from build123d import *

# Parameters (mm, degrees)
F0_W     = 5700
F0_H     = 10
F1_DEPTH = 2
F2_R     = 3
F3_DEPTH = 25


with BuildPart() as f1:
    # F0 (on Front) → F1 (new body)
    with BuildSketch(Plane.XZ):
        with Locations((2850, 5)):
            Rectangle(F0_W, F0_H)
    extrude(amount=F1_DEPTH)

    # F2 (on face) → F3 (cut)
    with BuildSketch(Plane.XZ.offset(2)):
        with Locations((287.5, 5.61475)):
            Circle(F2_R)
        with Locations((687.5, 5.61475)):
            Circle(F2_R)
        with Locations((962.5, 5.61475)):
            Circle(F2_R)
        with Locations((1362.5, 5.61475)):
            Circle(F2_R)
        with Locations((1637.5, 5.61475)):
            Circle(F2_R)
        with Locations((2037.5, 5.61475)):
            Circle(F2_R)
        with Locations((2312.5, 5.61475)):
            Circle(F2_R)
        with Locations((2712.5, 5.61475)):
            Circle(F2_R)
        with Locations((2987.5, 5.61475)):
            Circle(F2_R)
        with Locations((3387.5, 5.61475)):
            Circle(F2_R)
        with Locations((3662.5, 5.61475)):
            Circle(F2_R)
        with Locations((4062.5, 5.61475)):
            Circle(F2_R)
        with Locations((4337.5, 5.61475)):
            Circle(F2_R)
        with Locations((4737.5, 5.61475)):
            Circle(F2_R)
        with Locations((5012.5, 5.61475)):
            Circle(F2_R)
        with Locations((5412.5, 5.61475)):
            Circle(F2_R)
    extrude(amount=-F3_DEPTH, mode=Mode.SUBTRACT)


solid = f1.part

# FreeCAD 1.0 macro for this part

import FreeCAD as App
import Part
import Sketcher

V = App.Vector

doc = App.newDocument("Part")
params = doc.addObject("Spreadsheet::Sheet", "Params")
for row, (alias, value) in enumerate([
    ("sketch1_width", "5700 mm"),
    ("sketch1_height", "10 mm"),
    ("pad1_length", "2 mm"),
    ("sketch2_diameter", "6 mm"),
    ("pocket1_length", "25 mm"),
], start=1):
    params.set(f"A{row}", alias)
    params.set(f"B{row}", "=" + value)
    params.setAlias(f"B{row}", alias)

body = doc.addObject("PartDesign::Body", "Body")

# Sketch on XZ plane
sketch1 = body.newObject("Sketcher::SketchObject", "Sketch")
sketch1.AttachmentSupport = (doc.getObject("XZ_Plane"), [""])
sketch1.MapMode = "FlatFace"
sketch1.addGeometry(Part.LineSegment(V(0, 10, 0), V(0, 0, 0)), False)
sketch1.addGeometry(Part.LineSegment(V(0, 0, 0), V(5700, 0, 0)), False)
sketch1.addGeometry(Part.LineSegment(V(5700, 0, 0), V(5700, 10, 0)), False)
sketch1.addGeometry(Part.LineSegment(V(5700, 10, 0), V(0, 10, 0)), False)
sketch1.addConstraint(Sketcher.Constraint("Coincident", 0, 2, 1, 1))
sketch1.addConstraint(Sketcher.Constraint("Coincident", 1, 2, 2, 1))
sketch1.addConstraint(Sketcher.Constraint("Coincident", 2, 2, 3, 1))
sketch1.addConstraint(Sketcher.Constraint("Coincident", 3, 2, 0, 1))
sketch1.addConstraint(Sketcher.Constraint("Vertical", 0))
sketch1.addConstraint(Sketcher.Constraint("Horizontal", 1))
sketch1.addConstraint(Sketcher.Constraint("Vertical", 2))
sketch1.addConstraint(Sketcher.Constraint("Horizontal", 3))
sketch1.addConstraint(Sketcher.Constraint("Coincident", 0, 2, -1, 1))
sketch1.addConstraint(Sketcher.Constraint("DistanceX", 1, 1, 1, 2, 5700.0))
sketch1.addConstraint(Sketcher.Constraint("DistanceY", 0, 2, 0, 1, 10.0))
sketch1.setExpression("Constraints[9]", "Params.sketch1_width")
sketch1.setExpression("Constraints[10]", "Params.sketch1_height")
pad1 = body.newObject("PartDesign::Pad", "Pad")
pad1.Profile = sketch1
pad1.setExpression("Length", "Params.pad1_length")

# Sketch on XZ plane
sketch2 = body.newObject("Sketcher::SketchObject", "Sketch001")
sketch2.AttachmentSupport = (doc.getObject("XZ_Plane"), [""])
sketch2.MapMode = "FlatFace"
sketch2.AttachmentOffset = App.Placement(V(0, 0, 2), App.Rotation())
sketch2.addGeometry(Part.Circle(V(287.5, 5.6, 0), V(0, 0, 1), 3), False)
sketch2.addGeometry(Part.Circle(V(687.5, 5.6, 0), V(0, 0, 1), 3), False)
sketch2.addGeometry(Part.Circle(V(962.5, 5.6, 0), V(0, 0, 1), 3), False)
sketch2.addGeometry(Part.Circle(V(1362.5, 5.6, 0), V(0, 0, 1), 3), False)
sketch2.addGeometry(Part.Circle(V(1637.5, 5.6, 0), V(0, 0, 1), 3), False)
sketch2.addGeometry(Part.Circle(V(2037.5, 5.6, 0), V(0, 0, 1), 3), False)
sketch2.addGeometry(Part.Circle(V(2312.5, 5.6, 0), V(0, 0, 1), 3), False)
sketch2.addGeometry(Part.Circle(V(2712.5, 5.6, 0), V(0, 0, 1), 3), False)
sketch2.addGeometry(Part.Circle(V(2987.5, 5.6, 0), V(0, 0, 1), 3), False)
sketch2.addGeometry(Part.Circle(V(3387.5, 5.6, 0), V(0, 0, 1), 3), False)
sketch2.addGeometry(Part.Circle(V(3662.5, 5.6, 0), V(0, 0, 1), 3), False)
sketch2.addGeometry(Part.Circle(V(4062.5, 5.6, 0), V(0, 0, 1), 3), False)
sketch2.addGeometry(Part.Circle(V(4337.5, 5.6, 0), V(0, 0, 1), 3), False)
sketch2.addGeometry(Part.Circle(V(4737.5, 5.6, 0), V(0, 0, 1), 3), False)
sketch2.addGeometry(Part.Circle(V(5012.5, 5.6, 0), V(0, 0, 1), 3), False)
sketch2.addGeometry(Part.Circle(V(5412.5, 5.6, 0), V(0, 0, 1), 3), False)
sketch2.addConstraint(Sketcher.Constraint("Equal", 0, 1))
sketch2.addConstraint(Sketcher.Constraint("Equal", 1, 2))
sketch2.addConstraint(Sketcher.Constraint("Equal", 2, 3))
sketch2.addConstraint(Sketcher.Constraint("Equal", 3, 4))
sketch2.addConstraint(Sketcher.Constraint("Equal", 4, 5))
sketch2.addConstraint(Sketcher.Constraint("Equal", 5, 6))
sketch2.addConstraint(Sketcher.Constraint("Equal", 6, 7))
sketch2.addConstraint(Sketcher.Constraint("Equal", 7, 8))
sketch2.addConstraint(Sketcher.Constraint("Equal", 8, 9))
sketch2.addConstraint(Sketcher.Constraint("Equal", 9, 10))
sketch2.addConstraint(Sketcher.Constraint("Equal", 10, 11))
sketch2.addConstraint(Sketcher.Constraint("Equal", 11, 12))
sketch2.addConstraint(Sketcher.Constraint("Equal", 12, 13))
sketch2.addConstraint(Sketcher.Constraint("Equal", 13, 14))
sketch2.addConstraint(Sketcher.Constraint("Equal", 14, 15))
sketch2.addConstraint(Sketcher.Constraint("Horizontal", 0, 3, 1, 3))
sketch2.addConstraint(Sketcher.Constraint("Horizontal", 1, 3, 2, 3))
sketch2.addConstraint(Sketcher.Constraint("Horizontal", 2, 3, 3, 3))
sketch2.addConstraint(Sketcher.Constraint("Horizontal", 3, 3, 4, 3))
sketch2.addConstraint(Sketcher.Constraint("Horizontal", 4, 3, 5, 3))
sketch2.addConstraint(Sketcher.Constraint("Horizontal", 5, 3, 6, 3))
sketch2.addConstraint(Sketcher.Constraint("Horizontal", 6, 3, 7, 3))
sketch2.addConstraint(Sketcher.Constraint("Horizontal", 7, 3, 8, 3))
sketch2.addConstraint(Sketcher.Constraint("Horizontal", 8, 3, 9, 3))
sketch2.addConstraint(Sketcher.Constraint("Horizontal", 9, 3, 10, 3))
sketch2.addConstraint(Sketcher.Constraint("Horizontal", 10, 3, 11, 3))
sketch2.addConstraint(Sketcher.Constraint("Horizontal", 11, 3, 12, 3))
sketch2.addConstraint(Sketcher.Constraint("Horizontal", 12, 3, 13, 3))
sketch2.addConstraint(Sketcher.Constraint("Horizontal", 13, 3, 14, 3))
sketch2.addConstraint(Sketcher.Constraint("Horizontal", 14, 3, 15, 3))
sketch2.addConstraint(Sketcher.Constraint("Diameter", 0, 6.0))
sketch2.addConstraint(Sketcher.Constraint("DistanceX", 0, 3, 1, 3, 400.0))
sketch2.addConstraint(Sketcher.Constraint("DistanceX", 1, 3, 2, 3, 275.0))
sketch2.addConstraint(Sketcher.Constraint("DistanceX", 2, 3, 3, 3, 400.0))
sketch2.addConstraint(Sketcher.Constraint("DistanceX", 3, 3, 4, 3, 275.0))
sketch2.addConstraint(Sketcher.Constraint("DistanceX", 4, 3, 5, 3, 400.0))
sketch2.addConstraint(Sketcher.Constraint("DistanceX", 5, 3, 6, 3, 275.0))
sketch2.addConstraint(Sketcher.Constraint("DistanceX", 6, 3, 7, 3, 400.0))
sketch2.addConstraint(Sketcher.Constraint("DistanceX", 7, 3, 8, 3, 275.0))
sketch2.addConstraint(Sketcher.Constraint("DistanceX", 8, 3, 9, 3, 400.0))
sketch2.addConstraint(Sketcher.Constraint("DistanceX", 9, 3, 10, 3, 275.0))
sketch2.addConstraint(Sketcher.Constraint("DistanceX", 10, 3, 11, 3, 400.0))
sketch2.addConstraint(Sketcher.Constraint("DistanceX", 11, 3, 12, 3, 275.0))
sketch2.addConstraint(Sketcher.Constraint("DistanceX", 12, 3, 13, 3, 400.0))
sketch2.addConstraint(Sketcher.Constraint("DistanceX", 13, 3, 14, 3, 275.0))
sketch2.addConstraint(Sketcher.Constraint("DistanceX", 14, 3, 15, 3, 400.0))
sketch2.addConstraint(Sketcher.Constraint("DistanceX", -1, 1, 0, 3, 287.5))
sketch2.addConstraint(Sketcher.Constraint("DistanceY", -1, 1, 0, 3, 5.61475))
sketch2.setExpression("Constraints[30]", "Params.sketch2_diameter")
pocket1 = body.newObject("PartDesign::Pocket", "Pocket")
pocket1.Profile = sketch2
pocket1.setExpression("Length", "Params.pocket1_length")

doc.recompute()
